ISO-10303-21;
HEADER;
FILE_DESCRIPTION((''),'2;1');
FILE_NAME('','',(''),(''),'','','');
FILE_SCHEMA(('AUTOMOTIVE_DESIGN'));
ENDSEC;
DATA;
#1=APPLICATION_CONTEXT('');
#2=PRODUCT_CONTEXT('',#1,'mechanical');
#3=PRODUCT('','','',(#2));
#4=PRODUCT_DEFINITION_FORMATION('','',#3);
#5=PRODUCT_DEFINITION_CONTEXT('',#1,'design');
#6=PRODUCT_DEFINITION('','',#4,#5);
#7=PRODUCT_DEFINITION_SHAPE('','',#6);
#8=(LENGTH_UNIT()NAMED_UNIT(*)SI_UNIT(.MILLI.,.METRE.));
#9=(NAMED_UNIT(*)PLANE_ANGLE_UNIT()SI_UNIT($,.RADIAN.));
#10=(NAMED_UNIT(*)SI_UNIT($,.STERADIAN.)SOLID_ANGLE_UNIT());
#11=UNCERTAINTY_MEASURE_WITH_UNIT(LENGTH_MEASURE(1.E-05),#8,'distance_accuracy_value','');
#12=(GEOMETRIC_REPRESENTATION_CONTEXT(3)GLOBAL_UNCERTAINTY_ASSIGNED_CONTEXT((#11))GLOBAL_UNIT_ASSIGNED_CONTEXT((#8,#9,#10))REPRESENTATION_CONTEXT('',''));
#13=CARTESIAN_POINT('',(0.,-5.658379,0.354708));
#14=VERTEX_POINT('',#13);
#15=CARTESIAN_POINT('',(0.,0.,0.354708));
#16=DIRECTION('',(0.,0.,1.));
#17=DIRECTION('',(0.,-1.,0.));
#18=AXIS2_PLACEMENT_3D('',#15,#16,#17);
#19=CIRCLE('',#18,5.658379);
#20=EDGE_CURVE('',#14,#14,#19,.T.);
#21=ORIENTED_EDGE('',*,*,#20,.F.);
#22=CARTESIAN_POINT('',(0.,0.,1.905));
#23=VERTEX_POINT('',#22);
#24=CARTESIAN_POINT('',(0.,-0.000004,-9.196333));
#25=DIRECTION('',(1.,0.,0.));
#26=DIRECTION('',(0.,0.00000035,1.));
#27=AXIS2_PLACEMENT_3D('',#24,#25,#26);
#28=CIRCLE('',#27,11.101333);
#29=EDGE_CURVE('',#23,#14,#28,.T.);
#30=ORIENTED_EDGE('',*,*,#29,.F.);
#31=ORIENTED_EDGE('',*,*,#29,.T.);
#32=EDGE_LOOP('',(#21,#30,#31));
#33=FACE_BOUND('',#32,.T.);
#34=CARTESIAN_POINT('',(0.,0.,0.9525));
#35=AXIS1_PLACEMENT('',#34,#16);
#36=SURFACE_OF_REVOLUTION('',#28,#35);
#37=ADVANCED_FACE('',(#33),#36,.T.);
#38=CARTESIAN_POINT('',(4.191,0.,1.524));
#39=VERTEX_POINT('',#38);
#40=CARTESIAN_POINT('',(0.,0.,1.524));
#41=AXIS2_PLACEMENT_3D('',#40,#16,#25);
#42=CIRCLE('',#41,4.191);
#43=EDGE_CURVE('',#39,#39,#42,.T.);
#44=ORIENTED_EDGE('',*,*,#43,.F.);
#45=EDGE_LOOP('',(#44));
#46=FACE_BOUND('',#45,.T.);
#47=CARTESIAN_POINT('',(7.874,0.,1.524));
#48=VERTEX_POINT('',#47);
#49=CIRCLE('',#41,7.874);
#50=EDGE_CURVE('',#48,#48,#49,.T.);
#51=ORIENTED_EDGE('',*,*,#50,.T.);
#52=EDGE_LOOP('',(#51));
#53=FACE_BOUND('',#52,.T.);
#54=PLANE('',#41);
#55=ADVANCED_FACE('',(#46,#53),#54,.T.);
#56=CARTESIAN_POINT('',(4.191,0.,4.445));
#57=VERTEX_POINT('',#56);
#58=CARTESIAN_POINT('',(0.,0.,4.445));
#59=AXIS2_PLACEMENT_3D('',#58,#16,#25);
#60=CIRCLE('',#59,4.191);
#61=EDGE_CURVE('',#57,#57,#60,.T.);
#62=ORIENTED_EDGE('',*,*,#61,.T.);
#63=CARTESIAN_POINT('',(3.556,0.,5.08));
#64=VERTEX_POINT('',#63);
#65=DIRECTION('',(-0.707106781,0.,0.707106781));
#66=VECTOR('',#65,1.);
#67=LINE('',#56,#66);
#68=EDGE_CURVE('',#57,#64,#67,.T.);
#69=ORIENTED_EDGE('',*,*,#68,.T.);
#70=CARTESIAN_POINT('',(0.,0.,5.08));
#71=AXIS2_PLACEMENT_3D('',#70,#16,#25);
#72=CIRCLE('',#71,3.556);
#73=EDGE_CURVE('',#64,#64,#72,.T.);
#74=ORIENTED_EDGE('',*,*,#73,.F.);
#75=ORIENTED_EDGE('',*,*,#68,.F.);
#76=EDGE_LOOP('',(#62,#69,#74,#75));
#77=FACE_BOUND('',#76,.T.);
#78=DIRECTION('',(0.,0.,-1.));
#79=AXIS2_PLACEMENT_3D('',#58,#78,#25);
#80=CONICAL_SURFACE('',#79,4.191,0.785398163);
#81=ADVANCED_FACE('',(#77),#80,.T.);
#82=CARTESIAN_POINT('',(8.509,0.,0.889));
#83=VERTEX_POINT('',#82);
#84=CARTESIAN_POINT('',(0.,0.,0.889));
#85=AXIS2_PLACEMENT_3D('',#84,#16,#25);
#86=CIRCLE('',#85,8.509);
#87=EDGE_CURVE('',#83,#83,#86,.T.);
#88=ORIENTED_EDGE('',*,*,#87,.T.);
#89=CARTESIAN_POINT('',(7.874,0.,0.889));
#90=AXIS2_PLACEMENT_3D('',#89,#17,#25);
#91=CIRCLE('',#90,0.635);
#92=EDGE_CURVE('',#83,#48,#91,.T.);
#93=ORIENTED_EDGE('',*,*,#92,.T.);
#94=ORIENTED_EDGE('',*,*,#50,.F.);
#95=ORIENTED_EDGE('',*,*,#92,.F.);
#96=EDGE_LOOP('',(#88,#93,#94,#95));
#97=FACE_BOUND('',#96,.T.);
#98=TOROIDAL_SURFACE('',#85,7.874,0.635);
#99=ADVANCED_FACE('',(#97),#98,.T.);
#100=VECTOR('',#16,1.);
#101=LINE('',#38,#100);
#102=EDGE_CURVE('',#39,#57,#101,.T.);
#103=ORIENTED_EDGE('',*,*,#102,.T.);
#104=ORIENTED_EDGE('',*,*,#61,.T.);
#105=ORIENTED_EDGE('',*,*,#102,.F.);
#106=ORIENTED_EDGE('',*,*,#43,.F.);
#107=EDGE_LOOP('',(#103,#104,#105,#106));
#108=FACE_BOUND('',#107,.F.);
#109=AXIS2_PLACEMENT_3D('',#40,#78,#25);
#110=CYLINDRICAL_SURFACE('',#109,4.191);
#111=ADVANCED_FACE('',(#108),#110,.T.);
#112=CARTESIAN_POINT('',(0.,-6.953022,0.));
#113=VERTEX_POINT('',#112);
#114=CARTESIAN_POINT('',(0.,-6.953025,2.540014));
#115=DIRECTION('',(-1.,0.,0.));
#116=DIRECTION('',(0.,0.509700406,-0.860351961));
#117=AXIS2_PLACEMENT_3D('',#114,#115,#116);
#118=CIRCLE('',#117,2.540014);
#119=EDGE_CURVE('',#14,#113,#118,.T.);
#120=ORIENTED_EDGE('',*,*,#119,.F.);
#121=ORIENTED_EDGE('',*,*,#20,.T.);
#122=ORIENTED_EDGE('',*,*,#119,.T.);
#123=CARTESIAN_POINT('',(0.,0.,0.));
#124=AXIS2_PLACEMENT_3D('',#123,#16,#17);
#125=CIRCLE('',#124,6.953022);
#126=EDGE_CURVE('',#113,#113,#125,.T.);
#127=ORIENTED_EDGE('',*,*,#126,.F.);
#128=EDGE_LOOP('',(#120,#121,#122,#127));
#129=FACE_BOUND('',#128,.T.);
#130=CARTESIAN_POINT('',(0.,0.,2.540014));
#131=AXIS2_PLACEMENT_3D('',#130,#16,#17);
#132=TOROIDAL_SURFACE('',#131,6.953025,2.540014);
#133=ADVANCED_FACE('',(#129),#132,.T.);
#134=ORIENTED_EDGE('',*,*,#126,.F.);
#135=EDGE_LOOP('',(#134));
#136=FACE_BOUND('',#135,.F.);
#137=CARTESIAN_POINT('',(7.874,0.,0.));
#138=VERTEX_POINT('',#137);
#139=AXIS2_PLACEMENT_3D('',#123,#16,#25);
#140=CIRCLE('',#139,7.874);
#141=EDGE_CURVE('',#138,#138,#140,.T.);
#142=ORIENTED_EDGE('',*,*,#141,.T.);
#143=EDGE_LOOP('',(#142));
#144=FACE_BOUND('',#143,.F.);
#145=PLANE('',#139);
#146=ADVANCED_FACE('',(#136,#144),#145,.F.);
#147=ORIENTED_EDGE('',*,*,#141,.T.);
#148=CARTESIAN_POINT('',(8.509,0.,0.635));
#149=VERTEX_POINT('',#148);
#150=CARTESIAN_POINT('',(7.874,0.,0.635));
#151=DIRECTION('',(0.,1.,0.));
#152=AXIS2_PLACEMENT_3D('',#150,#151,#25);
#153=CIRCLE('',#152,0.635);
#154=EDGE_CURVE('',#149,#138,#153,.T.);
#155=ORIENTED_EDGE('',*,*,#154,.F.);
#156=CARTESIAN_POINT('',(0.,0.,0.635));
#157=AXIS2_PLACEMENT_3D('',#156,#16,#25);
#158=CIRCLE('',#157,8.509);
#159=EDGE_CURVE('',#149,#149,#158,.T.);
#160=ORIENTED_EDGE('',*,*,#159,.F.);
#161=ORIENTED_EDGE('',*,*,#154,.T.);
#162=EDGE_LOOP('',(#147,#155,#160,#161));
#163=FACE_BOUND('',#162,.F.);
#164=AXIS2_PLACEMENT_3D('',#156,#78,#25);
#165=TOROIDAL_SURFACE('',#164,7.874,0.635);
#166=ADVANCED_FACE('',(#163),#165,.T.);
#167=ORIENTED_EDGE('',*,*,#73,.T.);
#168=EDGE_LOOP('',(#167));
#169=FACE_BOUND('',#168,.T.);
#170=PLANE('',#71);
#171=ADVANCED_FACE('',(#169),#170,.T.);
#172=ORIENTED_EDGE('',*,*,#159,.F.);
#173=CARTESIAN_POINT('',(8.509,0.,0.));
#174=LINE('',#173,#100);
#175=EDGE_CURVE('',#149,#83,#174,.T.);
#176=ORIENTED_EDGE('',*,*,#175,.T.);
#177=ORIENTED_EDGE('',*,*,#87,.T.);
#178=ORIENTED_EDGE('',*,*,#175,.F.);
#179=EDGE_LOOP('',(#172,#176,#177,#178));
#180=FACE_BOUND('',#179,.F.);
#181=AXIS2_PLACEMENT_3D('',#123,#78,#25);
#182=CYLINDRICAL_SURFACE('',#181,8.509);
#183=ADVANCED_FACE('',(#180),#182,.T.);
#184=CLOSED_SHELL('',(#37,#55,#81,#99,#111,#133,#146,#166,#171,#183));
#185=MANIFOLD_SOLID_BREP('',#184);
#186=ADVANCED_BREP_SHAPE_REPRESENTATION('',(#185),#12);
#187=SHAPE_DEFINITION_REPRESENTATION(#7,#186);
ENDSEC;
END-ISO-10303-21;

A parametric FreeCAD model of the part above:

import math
import FreeCAD as App
import Part
import Sketcher
Q = App.Units.Quantity


def edges_at(feature, points):
    """Names of the edges that pass closest to the given points."""
    edges = feature.Shape.Edges
    near = lambda p: min(range(len(edges)), key=lambda i: edges[i].distToShape(Part.Vertex(*p))[0])
    return sorted({f"Edge{near(p) + 1}" for p in points})

doc = App.newDocument("Part")
body = doc.addObject("PartDesign::Body", "Body")

sketch1 = body.newObject("Sketcher::SketchObject", "Sketch")
sketch1.AttachmentSupport = (doc.getObject("XY_Plane"), [""])
sketch1.MapMode = "FlatFace"
sketch1.addGeometry(Part.Circle(App.Vector(0, 0, 0), App.Vector(0, 0, 1), 8.509), False)
sketch1.addConstraint([
    Sketcher.Constraint("Coincident", 0, 3, -1, 1),
    Sketcher.Constraint("Diameter", 0, Q("0.67 in")),
])
pad1 = body.newObject("PartDesign::Pad", "Pad")
pad1.Profile = sketch1
pad1.Length = Q("0.06 in")

sketch2 = body.newObject("Sketcher::SketchObject", "Sketch001")
sketch2.AttachmentSupport = (doc.getObject("XY_Plane"), [""])
sketch2.MapMode = "FlatFace"
sketch2.AttachmentOffset = App.Placement(App.Vector(0, 0, 0.06 * 25.4), App.Rotation())
sketch2.addGeometry(Part.Circle(App.Vector(0, 0, 0), App.Vector(0, 0, 1), 4.191), False)
sketch2.addConstraint([
    Sketcher.Constraint("Coincident", 0, 3, -1, 1),
    Sketcher.Constraint("Diameter", 0, Q("0.33 in")),
])
pad2 = body.newObject("PartDesign::Pad", "Pad001")
pad2.Profile = sketch2
pad2.Length = Q("0.14 in")
doc.recompute()

fillet = body.newObject("PartDesign::Fillet", "Fillet")
fillet.Base = (pad2, edges_at(pad2, [(-8.509, 0, 1.524), (8.509, 0, 0.762), (-8.509, 0, 0)]))
fillet.Radius = Q("0.025 in")
doc.recompute()

chamfer = body.newObject("PartDesign::Chamfer", "Chamfer")
chamfer.Base = (fillet, edges_at(fillet, [(-4.191, 0, 5.08)]))
chamfer.Size = Q("0.025 in")

sketch3 = body.newObject("Sketcher::SketchObject", "Sketch002")
sketch3.AttachmentSupport = (doc.getObject("YZ_Plane"), [""])
sketch3.MapMode = "FlatFace"
sketch3.addGeometry([
    Part.LineSegment(App.Vector(0, 0, 0), App.Vector(0, 1.905, 0)),
    Part.ArcOfCircle(Part.Circle(App.Vector(-0.000004, -9.196333, 0), App.Vector(0, 0, 1), 11.101333), math.radians(89.99998), math.radians(120.644004)),
    Part.ArcOfCircle(Part.Circle(App.Vector(-6.953025, 2.540014, 0), App.Vector(0, 0, 1), 2.540014), math.radians(-89.999927), math.radians(-59.356124)),
    Part.LineSegment(App.Vector(-6.953022, 0, 0), App.Vector(0, 0, 0)),
], False)
sketch3.addConstraint([
    Sketcher.Constraint("Coincident", 0, 2, 1, 1),
    Sketcher.Constraint("Coincident", 1, 2, 2, 2),
    Sketcher.Constraint("Tangent", 2, 1, 3, 1),
    Sketcher.Constraint("Coincident", 3, 2, 0, 1),
    Sketcher.Constraint("Vertical", 0),
    Sketcher.Constraint("Horizontal", 3),
    Sketcher.Constraint("Coincident", 3, 2, -1, 1),
    Sketcher.Constraint("DistanceY", 0, 1, 0, 2, Q("0.075 in")),
    Sketcher.Constraint("Radius", 1, 11.101333),
    Sketcher.Constraint("Radius", 2, 2.540014),
    Sketcher.Constraint("DistanceX", 3, 1, 3, 2, 6.953022),
    Sketcher.Constraint("DistanceX", 1, 2, -1, 1, 5.658379),
])
groove = body.newObject("PartDesign::Groove", "Groove")
groove.Profile = sketch3
groove.ReferenceAxis = (sketch3, ["V_Axis"])
groove.Angle = 360

doc.recompute()
